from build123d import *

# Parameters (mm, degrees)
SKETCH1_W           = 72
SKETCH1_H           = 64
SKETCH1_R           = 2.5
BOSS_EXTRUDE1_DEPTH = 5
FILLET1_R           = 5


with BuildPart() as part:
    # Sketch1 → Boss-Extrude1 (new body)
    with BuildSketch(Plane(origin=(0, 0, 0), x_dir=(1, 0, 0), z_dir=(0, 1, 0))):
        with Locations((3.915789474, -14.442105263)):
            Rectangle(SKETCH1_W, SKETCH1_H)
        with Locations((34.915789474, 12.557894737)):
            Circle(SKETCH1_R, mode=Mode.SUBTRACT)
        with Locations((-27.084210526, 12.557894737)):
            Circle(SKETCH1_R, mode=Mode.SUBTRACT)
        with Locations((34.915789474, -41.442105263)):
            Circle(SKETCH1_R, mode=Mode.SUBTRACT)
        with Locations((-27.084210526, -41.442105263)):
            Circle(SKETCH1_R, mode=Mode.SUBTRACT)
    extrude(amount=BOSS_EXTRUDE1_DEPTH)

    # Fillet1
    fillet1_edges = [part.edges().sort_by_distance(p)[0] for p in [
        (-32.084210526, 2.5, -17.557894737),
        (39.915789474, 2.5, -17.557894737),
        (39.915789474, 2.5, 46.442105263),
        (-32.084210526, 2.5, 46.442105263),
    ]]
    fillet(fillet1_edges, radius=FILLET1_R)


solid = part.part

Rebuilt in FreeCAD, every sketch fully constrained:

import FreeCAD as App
import Part
import Sketcher


def edges_at(feature, points):
    """Names of the edges that pass closest to the given points."""
    edges = feature.Shape.Edges
    near = lambda p: min(range(len(edges)), key=lambda i: edges[i].distToShape(Part.Vertex(*p))[0])
    return sorted({f"Edge{near(p) + 1}" for p in points})


def add_polygon(sketch, points):
    """Adds a closed chain of lines whose ends are joined by coincident constraints."""
    first, n = sketch.GeometryCount, len(points)
    for a, b in zip(points, points[1:] + points[:1]):
        sketch.addGeometry(Part.LineSegment(App.Vector(*a, 0), App.Vector(*b, 0)), False)
    for i in range(n):
        sketch.addConstraint(Sketcher.Constraint("Coincident", first + i, 2, first + (i + 1) % n, 1))

doc = App.newDocument("Part")
body = doc.addObject("PartDesign::Body", "Body")

# Sketch on XZ plane
sketch1 = body.newObject("Sketcher::SketchObject", "Sketch")
sketch1.AttachmentSupport = (doc.getObject("XZ_Plane"), [""])
sketch1.MapMode = "FlatFace"
add_polygon(sketch1, [(-32.084211, -17.557895), (-32.084211, 46.442105), (39.915789, 46.442105), (39.915789, -17.557895)])  # lines 0-3
sketch1.addGeometry(Part.Circle(App.Vector(-27.084211, 41.442105, 0), App.Vector(0, 0, 1), 2.5), False)  # 4
sketch1.addGeometry(Part.Circle(App.Vector(34.915789, 41.442105, 0), App.Vector(0, 0, 1), 2.5), False)  # 5
sketch1.addGeometry(Part.Circle(App.Vector(-27.084211, -12.557895, 0), App.Vector(0, 0, 1), 2.5), False)  # 6
sketch1.addGeometry(Part.Circle(App.Vector(34.915789, -12.557895, 0), App.Vector(0, 0, 1), 2.5), False)  # 7
sketch1.addConstraint([
    Sketcher.Constraint("Vertical", 0),
    Sketcher.Constraint("Horizontal", 1),
    Sketcher.Constraint("Vertical", 2),
    Sketcher.Constraint("Horizontal", 3),
    Sketcher.Constraint("Equal", 4, 5),
    Sketcher.Constraint("Equal", 5, 6),
    Sketcher.Constraint("Equal", 6, 7),
    Sketcher.Constraint("Horizontal", 4, 3, 5, 3),
    Sketcher.Constraint("Horizontal", 6, 3, 7, 3),
    Sketcher.Constraint("Vertical", 4, 3, 6, 3),
    Sketcher.Constraint("Vertical", 5, 3, 7, 3),
    Sketcher.Constraint("Diameter", 4, 5.0),
    Sketcher.Constraint("DistanceX", 1, 1, 1, 2, 72.0),
    Sketcher.Constraint("DistanceY", 0, 1, 0, 2, 64.0),
    Sketcher.Constraint("DistanceX", 4, 3, 5, 3, 62.0),
    Sketcher.Constraint("DistanceY", 6, 3, 4, 3, 54.0),
    Sketcher.Constraint("DistanceX", 0, 2, 4, 3, 5.0),
    Sketcher.Constraint("DistanceY", 4, 3, 0, 2, 5.0),
    Sketcher.Constraint("DistanceX", 4, 3, -1, 1, 27.084211),
    Sketcher.Constraint("DistanceY", -1, 1, 4, 3, 41.442105),
])
pad1 = body.newObject("PartDesign::Pad", "Pad")
pad1.Profile = sketch1
pad1.Length = 5
pad1.Reversed = True
doc.recompute()

fillet = body.newObject("PartDesign::Fillet", "Fillet")
fillet.Base = (pad1, edges_at(pad1, [
    (-32.084, 2.5, -17.558),
    (39.916, 2.5, -17.558),
    (39.916, 2.5, 46.442),
    (-32.084, 2.5, 46.442),
]))
fillet.Radius = 5

doc.recompute()
